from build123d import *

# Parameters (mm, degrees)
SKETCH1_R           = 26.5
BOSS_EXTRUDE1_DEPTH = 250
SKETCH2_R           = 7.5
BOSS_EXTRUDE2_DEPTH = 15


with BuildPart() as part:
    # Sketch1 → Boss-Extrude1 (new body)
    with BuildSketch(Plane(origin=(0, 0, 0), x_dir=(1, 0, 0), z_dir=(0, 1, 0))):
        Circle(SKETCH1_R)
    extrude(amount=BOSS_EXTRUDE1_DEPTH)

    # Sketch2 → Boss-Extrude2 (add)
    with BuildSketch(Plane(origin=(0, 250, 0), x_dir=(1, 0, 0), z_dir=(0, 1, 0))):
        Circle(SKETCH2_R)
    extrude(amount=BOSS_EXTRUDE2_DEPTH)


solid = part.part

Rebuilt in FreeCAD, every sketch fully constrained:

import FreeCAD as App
import Part
import Sketcher
from FreeCAD import Vector
Q = App.Units.Quantity

doc = App.newDocument("Part")
body = doc.addObject("PartDesign::Body", "Body")

sketch1 = body.newObject("Sketcher::SketchObject", "Sketch")
sketch1.AttachmentSupport = (doc.getObject("XZ_Plane"), [""])
sketch1.MapMode = "FlatFace"
sketch1.addGeometry(Part.Circle(Vector(0, 0, 0), Vector(0, 0, 1), 26), False)
sketch1.addConstraint(Sketcher.Constraint("Coincident", 0, 3, -1, 1))
sketch1.addConstraint(Sketcher.Constraint("Diameter", 0, Q("53 mm")))
pad1 = body.newObject("PartDesign::Pad", "Pad")
pad1.Profile = sketch1
pad1.Length = 250
pad1.Reversed = True

sketch2 = body.newObject("Sketcher::SketchObject", "Sketch001")
sketch2.AttachmentSupport = (doc.getObject("XZ_Plane"), [""])
sketch2.MapMode = "FlatFace"
sketch2.AttachmentOffset = App.Placement(Vector(0, 0, -250), App.Rotation())
sketch2.addGeometry(Part.Circle(Vector(0, 0, 0), Vector(0, 0, 1), 8), False)
sketch2.addConstraint(Sketcher.Constraint("Coincident", 0, 3, -1, 1))
sketch2.addConstraint(Sketcher.Constraint("Diameter", 0, Q("15 mm")))
pad2 = body.newObject("PartDesign::Pad", "Pad001")
pad2.Profile = sketch2
pad2.Length = 15
pad2.Reversed = True

doc.recompute()
